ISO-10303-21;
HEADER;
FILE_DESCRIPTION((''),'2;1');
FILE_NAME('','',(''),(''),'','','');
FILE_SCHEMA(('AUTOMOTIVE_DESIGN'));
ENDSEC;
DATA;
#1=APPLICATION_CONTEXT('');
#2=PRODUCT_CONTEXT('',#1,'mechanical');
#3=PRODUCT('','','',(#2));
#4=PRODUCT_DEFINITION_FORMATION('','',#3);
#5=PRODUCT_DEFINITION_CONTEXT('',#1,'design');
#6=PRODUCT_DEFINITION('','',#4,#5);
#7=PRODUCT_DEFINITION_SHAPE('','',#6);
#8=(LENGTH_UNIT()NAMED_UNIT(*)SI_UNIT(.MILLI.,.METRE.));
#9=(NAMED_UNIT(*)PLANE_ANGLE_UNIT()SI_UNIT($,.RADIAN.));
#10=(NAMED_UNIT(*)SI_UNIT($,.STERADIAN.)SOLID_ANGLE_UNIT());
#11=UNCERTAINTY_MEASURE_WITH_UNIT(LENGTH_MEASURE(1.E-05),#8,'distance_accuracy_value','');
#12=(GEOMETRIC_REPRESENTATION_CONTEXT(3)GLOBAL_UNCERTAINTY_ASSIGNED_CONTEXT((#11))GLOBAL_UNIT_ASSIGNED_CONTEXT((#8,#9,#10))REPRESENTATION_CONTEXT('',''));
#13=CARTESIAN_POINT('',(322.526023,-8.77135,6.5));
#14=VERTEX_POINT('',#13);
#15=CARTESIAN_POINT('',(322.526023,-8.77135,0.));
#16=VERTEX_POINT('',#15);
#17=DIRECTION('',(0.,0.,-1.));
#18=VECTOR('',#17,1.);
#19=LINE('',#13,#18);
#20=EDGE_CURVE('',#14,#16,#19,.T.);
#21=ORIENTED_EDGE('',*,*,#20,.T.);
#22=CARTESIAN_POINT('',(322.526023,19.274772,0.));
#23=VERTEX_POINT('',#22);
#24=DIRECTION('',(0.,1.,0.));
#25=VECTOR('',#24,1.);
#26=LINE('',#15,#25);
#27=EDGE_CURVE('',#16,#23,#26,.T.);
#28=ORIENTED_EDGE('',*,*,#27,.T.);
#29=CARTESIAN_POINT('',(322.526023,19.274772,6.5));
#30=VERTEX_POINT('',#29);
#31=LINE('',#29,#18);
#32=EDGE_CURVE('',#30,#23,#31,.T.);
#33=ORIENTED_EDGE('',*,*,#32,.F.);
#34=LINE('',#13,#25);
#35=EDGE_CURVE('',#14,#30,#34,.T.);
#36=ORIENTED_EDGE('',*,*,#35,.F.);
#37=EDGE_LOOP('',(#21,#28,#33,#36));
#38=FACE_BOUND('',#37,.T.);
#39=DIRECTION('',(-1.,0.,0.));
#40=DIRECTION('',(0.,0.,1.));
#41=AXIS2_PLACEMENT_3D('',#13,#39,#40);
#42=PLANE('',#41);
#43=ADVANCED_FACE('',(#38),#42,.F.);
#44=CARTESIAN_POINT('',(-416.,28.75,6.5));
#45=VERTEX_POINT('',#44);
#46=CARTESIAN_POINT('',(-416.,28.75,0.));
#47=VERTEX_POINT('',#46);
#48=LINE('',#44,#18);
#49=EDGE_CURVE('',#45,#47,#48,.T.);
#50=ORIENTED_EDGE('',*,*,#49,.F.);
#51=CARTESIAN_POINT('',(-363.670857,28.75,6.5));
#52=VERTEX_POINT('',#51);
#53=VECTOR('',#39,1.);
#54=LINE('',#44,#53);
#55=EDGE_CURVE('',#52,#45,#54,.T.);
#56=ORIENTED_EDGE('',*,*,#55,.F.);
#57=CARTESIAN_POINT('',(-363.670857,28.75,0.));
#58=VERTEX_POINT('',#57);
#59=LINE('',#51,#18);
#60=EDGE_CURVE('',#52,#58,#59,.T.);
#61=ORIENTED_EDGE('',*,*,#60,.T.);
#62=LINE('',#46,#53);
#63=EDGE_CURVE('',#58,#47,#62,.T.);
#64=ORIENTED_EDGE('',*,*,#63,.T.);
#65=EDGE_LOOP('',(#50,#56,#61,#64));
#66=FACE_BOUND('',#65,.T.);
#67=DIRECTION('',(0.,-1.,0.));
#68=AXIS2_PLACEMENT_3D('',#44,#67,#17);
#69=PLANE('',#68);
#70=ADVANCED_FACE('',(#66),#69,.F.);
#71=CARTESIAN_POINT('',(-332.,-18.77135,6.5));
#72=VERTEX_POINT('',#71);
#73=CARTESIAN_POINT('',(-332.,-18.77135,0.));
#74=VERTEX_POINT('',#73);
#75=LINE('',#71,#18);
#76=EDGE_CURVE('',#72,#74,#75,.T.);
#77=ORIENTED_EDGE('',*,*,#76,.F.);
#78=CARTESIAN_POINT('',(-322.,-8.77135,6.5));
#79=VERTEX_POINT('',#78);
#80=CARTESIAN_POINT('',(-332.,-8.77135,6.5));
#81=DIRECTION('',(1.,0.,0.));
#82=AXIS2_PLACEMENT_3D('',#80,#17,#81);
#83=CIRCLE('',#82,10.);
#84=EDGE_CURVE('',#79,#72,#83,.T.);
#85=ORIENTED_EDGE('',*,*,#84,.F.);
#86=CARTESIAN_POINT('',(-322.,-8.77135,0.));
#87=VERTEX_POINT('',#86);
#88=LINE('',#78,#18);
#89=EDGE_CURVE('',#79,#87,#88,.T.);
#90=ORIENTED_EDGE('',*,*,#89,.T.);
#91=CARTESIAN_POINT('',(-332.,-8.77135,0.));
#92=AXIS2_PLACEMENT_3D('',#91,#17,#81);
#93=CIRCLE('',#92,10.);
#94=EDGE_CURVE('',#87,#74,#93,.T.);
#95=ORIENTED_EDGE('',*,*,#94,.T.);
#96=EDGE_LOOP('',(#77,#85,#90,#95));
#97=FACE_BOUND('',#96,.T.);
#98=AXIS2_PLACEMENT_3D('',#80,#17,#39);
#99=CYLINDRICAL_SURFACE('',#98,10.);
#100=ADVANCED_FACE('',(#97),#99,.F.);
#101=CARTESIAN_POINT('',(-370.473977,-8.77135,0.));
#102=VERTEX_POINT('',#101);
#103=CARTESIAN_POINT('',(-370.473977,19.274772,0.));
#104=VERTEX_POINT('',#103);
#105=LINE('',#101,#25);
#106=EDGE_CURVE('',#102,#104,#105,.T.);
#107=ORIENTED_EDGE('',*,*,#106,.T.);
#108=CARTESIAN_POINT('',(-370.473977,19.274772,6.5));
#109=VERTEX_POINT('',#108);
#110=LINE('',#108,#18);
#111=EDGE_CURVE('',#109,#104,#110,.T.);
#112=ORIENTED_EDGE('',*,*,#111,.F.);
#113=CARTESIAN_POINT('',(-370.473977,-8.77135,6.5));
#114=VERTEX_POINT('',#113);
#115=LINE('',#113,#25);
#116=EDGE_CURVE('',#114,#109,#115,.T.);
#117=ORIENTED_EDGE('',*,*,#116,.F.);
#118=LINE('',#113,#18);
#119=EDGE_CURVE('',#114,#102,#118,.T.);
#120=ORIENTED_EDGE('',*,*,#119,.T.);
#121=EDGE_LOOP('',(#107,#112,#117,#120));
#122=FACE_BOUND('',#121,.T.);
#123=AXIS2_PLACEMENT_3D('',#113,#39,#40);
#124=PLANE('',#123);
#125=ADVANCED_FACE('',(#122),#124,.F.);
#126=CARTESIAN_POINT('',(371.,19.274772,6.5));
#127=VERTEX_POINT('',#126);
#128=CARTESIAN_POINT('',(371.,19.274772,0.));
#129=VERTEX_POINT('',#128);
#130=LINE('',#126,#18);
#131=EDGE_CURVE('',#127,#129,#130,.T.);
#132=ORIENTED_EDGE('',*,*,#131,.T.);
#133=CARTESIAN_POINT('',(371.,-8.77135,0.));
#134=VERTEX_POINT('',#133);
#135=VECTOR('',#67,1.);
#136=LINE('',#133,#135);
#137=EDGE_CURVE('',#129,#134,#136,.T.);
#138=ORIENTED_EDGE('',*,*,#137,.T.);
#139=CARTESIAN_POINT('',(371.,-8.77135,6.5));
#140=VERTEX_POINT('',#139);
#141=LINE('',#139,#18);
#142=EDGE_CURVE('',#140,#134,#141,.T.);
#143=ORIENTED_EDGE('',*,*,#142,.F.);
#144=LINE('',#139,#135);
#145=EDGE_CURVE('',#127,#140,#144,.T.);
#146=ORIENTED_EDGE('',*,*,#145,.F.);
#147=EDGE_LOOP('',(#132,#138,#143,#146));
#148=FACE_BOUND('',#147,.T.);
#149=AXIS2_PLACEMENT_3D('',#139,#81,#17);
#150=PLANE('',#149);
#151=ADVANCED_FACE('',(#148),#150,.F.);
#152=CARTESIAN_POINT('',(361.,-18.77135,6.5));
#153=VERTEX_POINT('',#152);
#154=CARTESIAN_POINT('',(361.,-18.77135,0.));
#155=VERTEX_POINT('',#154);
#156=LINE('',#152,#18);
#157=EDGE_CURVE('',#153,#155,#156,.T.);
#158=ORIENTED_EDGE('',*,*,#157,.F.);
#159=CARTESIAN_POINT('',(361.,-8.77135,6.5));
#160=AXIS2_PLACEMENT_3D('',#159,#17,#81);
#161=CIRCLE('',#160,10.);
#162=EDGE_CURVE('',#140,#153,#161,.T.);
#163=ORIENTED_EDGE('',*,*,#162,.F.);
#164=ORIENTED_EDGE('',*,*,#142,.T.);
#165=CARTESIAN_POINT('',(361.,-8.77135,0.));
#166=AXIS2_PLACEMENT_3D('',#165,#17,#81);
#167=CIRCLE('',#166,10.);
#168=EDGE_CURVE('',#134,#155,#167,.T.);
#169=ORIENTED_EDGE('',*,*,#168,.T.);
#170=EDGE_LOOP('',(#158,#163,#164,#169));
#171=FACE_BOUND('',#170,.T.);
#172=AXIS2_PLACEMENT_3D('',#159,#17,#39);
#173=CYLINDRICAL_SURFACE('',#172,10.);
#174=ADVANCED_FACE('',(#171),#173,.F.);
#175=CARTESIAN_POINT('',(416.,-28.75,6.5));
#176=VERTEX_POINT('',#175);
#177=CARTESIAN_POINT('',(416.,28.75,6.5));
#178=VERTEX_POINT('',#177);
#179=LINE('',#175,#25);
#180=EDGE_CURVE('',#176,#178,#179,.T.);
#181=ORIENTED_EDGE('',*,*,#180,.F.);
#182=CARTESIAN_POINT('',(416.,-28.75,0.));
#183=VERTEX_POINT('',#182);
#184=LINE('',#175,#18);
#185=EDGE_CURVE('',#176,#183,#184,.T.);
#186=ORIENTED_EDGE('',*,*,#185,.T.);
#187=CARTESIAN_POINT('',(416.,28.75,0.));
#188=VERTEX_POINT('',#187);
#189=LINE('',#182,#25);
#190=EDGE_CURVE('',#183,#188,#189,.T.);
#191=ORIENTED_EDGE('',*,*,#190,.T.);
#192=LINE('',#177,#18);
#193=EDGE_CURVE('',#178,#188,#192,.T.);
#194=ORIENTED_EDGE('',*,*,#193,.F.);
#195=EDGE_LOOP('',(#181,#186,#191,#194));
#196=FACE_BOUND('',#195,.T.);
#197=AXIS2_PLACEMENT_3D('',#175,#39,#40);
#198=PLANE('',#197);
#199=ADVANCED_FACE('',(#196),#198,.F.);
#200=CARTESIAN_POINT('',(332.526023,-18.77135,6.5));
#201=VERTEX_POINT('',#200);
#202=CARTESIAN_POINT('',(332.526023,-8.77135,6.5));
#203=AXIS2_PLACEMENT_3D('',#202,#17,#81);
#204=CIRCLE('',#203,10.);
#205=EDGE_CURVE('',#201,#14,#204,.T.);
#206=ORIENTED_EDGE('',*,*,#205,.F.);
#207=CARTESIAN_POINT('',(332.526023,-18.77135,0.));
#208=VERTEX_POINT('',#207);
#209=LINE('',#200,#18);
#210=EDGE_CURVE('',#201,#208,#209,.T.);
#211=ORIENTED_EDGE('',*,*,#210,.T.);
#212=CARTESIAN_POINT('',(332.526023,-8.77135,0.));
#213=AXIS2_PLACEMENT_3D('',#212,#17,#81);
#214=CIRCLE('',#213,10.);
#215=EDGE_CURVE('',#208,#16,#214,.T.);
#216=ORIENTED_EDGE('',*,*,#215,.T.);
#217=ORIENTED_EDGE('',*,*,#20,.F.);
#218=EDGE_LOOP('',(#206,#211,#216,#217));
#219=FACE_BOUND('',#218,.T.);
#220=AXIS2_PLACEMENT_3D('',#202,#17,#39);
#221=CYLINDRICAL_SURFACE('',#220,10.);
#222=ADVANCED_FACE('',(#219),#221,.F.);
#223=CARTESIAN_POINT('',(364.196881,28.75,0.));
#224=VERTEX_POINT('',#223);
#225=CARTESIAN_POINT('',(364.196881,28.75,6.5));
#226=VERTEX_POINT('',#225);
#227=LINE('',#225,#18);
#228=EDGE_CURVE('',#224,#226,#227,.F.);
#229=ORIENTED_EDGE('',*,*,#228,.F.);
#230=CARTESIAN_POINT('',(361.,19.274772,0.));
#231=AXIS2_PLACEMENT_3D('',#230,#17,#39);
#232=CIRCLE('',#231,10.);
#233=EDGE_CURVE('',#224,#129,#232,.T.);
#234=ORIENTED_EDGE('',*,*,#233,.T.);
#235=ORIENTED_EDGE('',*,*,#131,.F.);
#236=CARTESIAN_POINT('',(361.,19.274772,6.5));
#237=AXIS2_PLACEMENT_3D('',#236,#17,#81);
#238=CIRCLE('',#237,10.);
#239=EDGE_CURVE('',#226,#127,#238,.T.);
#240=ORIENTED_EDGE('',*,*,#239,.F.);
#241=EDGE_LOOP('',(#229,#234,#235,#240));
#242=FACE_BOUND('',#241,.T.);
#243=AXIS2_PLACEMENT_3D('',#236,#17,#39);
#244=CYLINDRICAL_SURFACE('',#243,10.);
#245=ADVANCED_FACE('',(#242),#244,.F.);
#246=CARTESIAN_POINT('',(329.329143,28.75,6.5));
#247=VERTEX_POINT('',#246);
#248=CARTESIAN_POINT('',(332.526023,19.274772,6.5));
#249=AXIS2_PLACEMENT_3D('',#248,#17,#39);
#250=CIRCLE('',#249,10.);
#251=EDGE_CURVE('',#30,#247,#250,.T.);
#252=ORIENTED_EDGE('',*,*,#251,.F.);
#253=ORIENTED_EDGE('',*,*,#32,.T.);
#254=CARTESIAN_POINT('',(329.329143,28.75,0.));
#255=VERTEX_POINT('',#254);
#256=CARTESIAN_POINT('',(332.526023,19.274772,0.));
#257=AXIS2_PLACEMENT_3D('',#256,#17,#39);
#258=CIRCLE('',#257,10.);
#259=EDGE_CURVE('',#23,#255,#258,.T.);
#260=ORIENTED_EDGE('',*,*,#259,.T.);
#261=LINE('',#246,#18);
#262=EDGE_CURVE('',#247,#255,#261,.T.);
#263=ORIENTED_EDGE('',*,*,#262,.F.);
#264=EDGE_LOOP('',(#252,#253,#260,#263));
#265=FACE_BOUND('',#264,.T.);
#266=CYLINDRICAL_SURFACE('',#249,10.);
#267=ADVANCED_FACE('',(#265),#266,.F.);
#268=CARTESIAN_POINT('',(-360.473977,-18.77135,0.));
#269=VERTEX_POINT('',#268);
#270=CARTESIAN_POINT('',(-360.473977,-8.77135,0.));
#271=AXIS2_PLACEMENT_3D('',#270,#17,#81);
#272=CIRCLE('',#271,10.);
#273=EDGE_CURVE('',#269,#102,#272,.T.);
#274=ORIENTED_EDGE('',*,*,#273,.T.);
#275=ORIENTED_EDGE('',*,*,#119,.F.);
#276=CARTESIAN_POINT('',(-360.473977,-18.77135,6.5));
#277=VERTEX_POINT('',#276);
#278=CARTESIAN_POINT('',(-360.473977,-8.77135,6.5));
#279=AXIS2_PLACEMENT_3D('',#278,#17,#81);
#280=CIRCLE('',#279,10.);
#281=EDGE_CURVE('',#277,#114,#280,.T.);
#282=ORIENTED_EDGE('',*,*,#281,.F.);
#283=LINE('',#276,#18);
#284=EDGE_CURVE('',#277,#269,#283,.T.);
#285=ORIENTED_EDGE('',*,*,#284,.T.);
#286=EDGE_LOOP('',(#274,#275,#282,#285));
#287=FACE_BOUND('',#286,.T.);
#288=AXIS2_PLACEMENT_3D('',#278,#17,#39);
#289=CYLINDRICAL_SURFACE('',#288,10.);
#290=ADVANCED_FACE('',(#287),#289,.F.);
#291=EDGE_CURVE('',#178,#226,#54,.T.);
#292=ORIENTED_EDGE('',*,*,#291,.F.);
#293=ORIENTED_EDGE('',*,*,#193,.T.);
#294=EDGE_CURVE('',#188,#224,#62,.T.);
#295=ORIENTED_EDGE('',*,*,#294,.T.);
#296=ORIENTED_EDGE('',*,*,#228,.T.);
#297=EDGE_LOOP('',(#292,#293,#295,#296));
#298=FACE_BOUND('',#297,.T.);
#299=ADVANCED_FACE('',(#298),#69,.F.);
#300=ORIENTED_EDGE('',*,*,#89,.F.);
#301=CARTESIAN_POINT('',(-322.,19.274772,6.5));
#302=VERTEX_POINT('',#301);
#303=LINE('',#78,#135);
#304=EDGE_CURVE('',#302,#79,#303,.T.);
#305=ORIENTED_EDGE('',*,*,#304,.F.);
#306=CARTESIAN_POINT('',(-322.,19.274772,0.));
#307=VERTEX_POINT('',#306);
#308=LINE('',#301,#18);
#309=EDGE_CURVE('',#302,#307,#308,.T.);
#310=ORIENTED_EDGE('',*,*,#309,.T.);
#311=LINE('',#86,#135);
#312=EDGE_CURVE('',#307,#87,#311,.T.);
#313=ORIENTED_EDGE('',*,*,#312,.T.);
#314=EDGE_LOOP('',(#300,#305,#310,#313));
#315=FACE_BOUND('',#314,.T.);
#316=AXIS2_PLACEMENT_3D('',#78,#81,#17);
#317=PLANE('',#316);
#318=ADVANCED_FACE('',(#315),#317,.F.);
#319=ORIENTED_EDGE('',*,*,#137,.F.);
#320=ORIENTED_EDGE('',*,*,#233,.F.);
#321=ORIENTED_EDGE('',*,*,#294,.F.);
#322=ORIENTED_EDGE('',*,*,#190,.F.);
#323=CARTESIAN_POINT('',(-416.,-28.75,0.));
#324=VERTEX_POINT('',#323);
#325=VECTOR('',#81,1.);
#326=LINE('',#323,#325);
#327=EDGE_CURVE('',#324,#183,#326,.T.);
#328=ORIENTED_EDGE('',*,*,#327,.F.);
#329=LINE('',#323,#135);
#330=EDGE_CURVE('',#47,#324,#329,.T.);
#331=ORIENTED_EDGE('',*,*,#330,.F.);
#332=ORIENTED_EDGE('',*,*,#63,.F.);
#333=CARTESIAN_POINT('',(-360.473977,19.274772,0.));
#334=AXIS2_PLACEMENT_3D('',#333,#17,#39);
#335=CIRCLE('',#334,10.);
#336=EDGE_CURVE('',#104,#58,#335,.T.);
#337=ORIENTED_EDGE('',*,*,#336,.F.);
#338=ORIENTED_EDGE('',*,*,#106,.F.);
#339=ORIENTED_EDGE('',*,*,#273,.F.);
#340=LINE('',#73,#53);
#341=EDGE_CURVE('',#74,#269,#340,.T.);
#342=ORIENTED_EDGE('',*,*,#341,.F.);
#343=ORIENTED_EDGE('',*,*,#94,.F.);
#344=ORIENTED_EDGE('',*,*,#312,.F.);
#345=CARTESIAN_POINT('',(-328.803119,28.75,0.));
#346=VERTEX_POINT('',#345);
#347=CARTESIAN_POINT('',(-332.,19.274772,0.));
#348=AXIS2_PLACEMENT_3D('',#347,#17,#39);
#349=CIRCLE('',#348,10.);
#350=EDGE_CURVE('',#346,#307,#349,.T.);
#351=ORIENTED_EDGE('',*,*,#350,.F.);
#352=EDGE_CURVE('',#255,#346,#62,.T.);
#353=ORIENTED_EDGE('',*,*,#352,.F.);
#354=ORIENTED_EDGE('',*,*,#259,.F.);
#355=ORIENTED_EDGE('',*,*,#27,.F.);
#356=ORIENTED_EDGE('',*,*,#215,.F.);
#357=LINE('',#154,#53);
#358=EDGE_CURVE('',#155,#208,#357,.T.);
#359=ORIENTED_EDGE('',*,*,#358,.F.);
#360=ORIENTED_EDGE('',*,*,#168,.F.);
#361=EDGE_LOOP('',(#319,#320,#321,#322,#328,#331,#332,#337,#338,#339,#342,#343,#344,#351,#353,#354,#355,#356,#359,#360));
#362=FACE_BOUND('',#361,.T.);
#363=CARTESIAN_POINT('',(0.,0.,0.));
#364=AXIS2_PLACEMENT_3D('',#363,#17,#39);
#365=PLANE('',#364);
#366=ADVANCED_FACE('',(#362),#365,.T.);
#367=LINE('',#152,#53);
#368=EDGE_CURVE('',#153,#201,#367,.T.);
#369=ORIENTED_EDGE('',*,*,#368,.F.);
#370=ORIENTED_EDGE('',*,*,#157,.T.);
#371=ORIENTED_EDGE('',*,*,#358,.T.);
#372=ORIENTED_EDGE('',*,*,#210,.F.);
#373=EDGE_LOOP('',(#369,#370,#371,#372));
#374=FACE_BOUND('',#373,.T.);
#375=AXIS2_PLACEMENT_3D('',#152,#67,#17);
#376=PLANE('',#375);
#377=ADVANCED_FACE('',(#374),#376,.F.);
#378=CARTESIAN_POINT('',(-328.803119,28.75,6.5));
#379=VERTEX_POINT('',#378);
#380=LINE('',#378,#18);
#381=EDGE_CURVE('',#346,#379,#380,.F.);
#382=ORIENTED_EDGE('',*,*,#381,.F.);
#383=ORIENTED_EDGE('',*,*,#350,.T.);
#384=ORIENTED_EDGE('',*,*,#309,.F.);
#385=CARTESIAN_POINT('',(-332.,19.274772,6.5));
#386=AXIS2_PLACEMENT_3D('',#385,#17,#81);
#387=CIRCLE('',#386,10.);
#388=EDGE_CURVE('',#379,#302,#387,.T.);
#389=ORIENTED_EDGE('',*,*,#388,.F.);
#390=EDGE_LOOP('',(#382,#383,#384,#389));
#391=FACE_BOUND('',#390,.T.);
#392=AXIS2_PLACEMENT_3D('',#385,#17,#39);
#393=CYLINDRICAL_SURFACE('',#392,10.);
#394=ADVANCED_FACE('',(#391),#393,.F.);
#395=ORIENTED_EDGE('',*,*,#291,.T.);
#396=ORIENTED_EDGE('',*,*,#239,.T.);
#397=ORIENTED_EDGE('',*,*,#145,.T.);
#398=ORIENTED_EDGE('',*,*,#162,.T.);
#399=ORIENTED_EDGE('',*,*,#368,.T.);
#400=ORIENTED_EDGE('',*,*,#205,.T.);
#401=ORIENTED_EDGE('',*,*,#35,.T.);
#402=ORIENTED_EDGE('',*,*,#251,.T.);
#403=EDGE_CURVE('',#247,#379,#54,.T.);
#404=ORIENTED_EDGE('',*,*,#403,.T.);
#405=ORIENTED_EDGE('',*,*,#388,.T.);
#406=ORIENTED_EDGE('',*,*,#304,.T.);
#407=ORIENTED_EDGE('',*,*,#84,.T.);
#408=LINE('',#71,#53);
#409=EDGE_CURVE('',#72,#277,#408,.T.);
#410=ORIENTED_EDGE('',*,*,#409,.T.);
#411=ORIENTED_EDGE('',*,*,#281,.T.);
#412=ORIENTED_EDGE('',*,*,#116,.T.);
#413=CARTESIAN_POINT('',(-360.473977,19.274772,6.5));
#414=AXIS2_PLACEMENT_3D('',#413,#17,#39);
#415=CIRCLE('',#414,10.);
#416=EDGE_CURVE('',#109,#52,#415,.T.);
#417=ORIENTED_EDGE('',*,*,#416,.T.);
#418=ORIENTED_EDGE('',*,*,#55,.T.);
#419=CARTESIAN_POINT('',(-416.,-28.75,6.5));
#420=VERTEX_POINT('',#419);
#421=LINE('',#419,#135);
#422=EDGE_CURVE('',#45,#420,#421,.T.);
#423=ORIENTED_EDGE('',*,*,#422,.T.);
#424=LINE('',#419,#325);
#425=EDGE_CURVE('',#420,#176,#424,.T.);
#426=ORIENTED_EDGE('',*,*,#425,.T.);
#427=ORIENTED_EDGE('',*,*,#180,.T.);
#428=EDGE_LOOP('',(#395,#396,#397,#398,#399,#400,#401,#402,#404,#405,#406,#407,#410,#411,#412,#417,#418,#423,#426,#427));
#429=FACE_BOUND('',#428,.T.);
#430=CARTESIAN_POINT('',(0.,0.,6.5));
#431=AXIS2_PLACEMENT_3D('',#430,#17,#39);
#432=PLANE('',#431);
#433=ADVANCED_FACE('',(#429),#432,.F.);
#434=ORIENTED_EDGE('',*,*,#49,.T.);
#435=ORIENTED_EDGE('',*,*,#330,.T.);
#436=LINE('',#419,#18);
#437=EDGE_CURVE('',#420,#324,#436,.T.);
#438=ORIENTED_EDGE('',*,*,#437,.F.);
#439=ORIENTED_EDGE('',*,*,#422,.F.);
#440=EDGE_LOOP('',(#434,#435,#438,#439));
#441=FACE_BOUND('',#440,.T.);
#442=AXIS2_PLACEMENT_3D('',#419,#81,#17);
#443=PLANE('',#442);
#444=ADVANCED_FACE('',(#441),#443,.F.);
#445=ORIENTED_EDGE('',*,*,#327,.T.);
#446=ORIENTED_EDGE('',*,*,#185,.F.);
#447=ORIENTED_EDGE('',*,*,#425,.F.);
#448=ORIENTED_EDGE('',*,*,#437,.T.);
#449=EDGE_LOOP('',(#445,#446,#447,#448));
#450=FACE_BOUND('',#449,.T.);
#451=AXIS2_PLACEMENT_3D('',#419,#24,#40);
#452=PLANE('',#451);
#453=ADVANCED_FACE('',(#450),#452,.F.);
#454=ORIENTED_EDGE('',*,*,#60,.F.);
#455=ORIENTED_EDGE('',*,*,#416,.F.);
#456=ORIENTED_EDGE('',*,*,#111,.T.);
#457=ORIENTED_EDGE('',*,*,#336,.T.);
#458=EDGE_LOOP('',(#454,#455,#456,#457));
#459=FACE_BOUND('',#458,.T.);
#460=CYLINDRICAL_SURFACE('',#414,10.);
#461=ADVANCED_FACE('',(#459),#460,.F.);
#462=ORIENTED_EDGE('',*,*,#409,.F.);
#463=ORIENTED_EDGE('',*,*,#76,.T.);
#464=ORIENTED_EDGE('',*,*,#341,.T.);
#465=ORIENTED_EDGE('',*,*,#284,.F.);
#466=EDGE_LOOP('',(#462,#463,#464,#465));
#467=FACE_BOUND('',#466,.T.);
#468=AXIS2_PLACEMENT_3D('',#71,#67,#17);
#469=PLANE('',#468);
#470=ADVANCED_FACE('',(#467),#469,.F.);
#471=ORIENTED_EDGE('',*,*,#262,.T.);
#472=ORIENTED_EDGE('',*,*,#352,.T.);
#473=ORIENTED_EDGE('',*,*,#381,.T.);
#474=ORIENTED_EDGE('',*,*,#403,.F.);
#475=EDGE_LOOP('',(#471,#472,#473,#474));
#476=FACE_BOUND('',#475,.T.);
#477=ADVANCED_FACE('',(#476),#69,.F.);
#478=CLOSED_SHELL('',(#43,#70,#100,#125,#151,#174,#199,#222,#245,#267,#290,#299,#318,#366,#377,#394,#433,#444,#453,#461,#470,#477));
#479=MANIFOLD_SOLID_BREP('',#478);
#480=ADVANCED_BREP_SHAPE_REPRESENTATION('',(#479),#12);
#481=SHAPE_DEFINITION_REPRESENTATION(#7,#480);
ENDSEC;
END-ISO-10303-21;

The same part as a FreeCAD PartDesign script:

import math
import FreeCAD as App
import Part
import Sketcher


def add_polygon(sketch, points):
    """Adds a closed chain of lines whose ends are joined by coincident constraints."""
    first, n = sketch.GeometryCount, len(points)
    for a, b in zip(points, points[1:] + points[:1]):
        sketch.addGeometry(Part.LineSegment(App.Vector(*a, 0), App.Vector(*b, 0)), False)
    for i in range(n):
        sketch.addConstraint(Sketcher.Constraint("Coincident", first + i, 2, first + (i + 1) % n, 1))

doc = App.newDocument("Part")
params = doc.addObject("Spreadsheet::Sheet", "Params")
for row, (alias, value) in enumerate([
    ("sketch1_width", "832 mm"),
    ("sketch1_height", "57.5 mm"),
    ("pad1_length", "6.5 mm"),
    ("sketch2_radius", "10 mm"),
    ("linearpattern_pitch", "693 mm"),
], start=1):
    params.set(f"A{row}", alias)
    params.set(f"B{row}", "=" + value)
    params.setAlias(f"B{row}", alias)

body = doc.addObject("PartDesign::Body", "Body")

# Sketch on XY plane
sketch1 = doc.addObject("Sketcher::SketchObject", "Sketch")
body.addObject(sketch1)
sketch1.AttachmentSupport = (doc.XY_Plane, [""])
sketch1.MapMode = "FlatFace"
add_polygon(sketch1, [(-416, 29), (-416, -29), (416, -29), (416, 29)])  # lines 0-3
sketch1.addConstraint([
    Sketcher.Constraint("Vertical", 0),
    Sketcher.Constraint("Horizontal", 1),
    Sketcher.Constraint("Vertical", 2),
    Sketcher.Constraint("Horizontal", 3),
    Sketcher.Constraint("Symmetric", 0, 2, 2, 2, -1, 1),
    Sketcher.Constraint("DistanceX", 1, 1, 1, 2, 832.0),
    Sketcher.Constraint("DistanceY", 0, 2, 0, 1, 57.5),
])
sketch1.setExpression("Constraints[9]", "Params.sketch1_width")
sketch1.setExpression("Constraints[10]", "Params.sketch1_height")
pad1 = doc.addObject("PartDesign::Pad", "Pad")
body.addObject(pad1)
pad1.Profile = sketch1
pad1.setExpression("Length", "Params.pad1_length")

# Sketch on XY plane
sketch2 = doc.addObject("Sketcher::SketchObject", "Sketch001")
body.addObject(sketch2)
sketch2.AttachmentSupport = (doc.XY_Plane, [""])
sketch2.MapMode = "FlatFace"
sketch2.addGeometry([
    Part.LineSegment(App.Vector(361, -19, 0), App.Vector(333, -19, 0)),  # 0
    Part.ArcOfCircle(Part.Circle(App.Vector(333, -9, 0), App.Vector(0, 0, 1), 10), math.radians(-180), math.radians(-90)),  # 1
    Part.LineSegment(App.Vector(323, -9, 0), App.Vector(323, 19, 0)),  # 2
    Part.ArcOfCircle(Part.Circle(App.Vector(333, 19, 0), App.Vector(0, 0, 1), 10), math.radians(90), math.radians(180)),  # 3
    Part.LineSegment(App.Vector(333, 29, 0), App.Vector(361, 29, 0)),  # 4
    Part.ArcOfCircle(Part.Circle(App.Vector(361, 19, 0), App.Vector(0, 0, 1), 10), math.radians(0), math.radians(90)),  # 5
    Part.LineSegment(App.Vector(371, 19, 0), App.Vector(371, -9, 0)),  # 6
    Part.ArcOfCircle(Part.Circle(App.Vector(361, -9, 0), App.Vector(0, 0, 1), 10), math.radians(-90), math.radians(0)),  # 7
], False)
sketch2.addConstraint([
    Sketcher.Constraint("Tangent", 0, 2, 1, 2),
    Sketcher.Constraint("Tangent", 1, 1, 2, 1),
    Sketcher.Constraint("Tangent", 2, 2, 3, 2),
    Sketcher.Constraint("Tangent", 3, 1, 4, 1),
    Sketcher.Constraint("Tangent", 4, 2, 5, 2),
    Sketcher.Constraint("Tangent", 5, 1, 6, 1),
    Sketcher.Constraint("Tangent", 6, 2, 7, 2),
    Sketcher.Constraint("Tangent", 7, 1, 0, 1),
    Sketcher.Constraint("Horizontal", 0),
    Sketcher.Constraint("Vertical", 2),
    Sketcher.Constraint("Horizontal", 4),
    Sketcher.Constraint("Vertical", 6),
    Sketcher.Constraint("Equal", 1, 3),
    Sketcher.Constraint("Equal", 3, 5),
    Sketcher.Constraint("Equal", 5, 7),
    Sketcher.Constraint("Radius", 1, 10.0),
    Sketcher.Constraint("DistanceX", -1, 1, 5, 3, 361.0),
    Sketcher.Constraint("DistanceY", 2, 1, 2, 2, 28.046122),
    Sketcher.Constraint("DistanceX", 0, 2, 0, 1, 28.473977),
    Sketcher.Constraint("DistanceY", 1, 3, -1, 1, 8.77135),
])
sketch2.setExpression("Constraints[15]", "Params.sketch2_radius")
pocket1 = doc.addObject("PartDesign::Pocket", "Pocket")
body.addObject(pocket1)
pocket1.Profile = sketch2
pocket1.Type = "ThroughAll"
pocket1.Reversed = True
doc.recompute()

linearpattern = doc.addObject("PartDesign::LinearPattern", "LinearPattern")
body.addObject(linearpattern)
linearpattern.Originals = [pocket1]
linearpattern.Direction = (doc.X_Axis, [""])
linearpattern.Mode = "offset"
linearpattern.setExpression("Offset", "Params.linearpattern_pitch")
linearpattern.Occurrences = 2
linearpattern.Reversed = True
body.Tip = linearpattern

doc.recompute()
